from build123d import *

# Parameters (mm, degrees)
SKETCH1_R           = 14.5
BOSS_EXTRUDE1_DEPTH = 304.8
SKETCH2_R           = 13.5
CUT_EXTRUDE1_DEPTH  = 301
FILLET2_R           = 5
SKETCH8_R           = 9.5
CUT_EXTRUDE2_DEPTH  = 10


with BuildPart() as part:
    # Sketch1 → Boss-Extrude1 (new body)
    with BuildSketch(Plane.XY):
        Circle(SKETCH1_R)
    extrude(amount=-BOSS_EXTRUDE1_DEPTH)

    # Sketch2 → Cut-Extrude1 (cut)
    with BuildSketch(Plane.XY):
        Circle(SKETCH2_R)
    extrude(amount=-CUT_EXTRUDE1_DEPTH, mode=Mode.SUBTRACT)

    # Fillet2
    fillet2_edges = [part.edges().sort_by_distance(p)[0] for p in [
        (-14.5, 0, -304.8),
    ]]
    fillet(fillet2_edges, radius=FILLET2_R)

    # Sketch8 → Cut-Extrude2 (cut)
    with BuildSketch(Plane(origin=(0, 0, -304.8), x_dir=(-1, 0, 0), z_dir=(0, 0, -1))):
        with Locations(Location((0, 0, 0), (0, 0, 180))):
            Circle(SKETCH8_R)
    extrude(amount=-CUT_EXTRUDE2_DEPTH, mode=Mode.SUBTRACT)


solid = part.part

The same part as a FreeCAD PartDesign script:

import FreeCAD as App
import Part
import Sketcher
from FreeCAD import Vector


def edges_at(feature, points):
    """Names of the edges that pass closest to the given points."""
    edges = feature.Shape.Edges
    near = lambda p: min(range(len(edges)), key=lambda i: edges[i].distToShape(Part.Vertex(*p))[0])
    return sorted({f"Edge{near(p) + 1}" for p in points})

doc = App.newDocument("Part")
body = doc.addObject("PartDesign::Body", "Body")

# Sketch on XY plane
sketch1 = doc.addObject("Sketcher::SketchObject", "Sketch")
body.addObject(sketch1)
sketch1.AttachmentSupport = (doc.XY_Plane, [""])
sketch1.MapMode = "FlatFace"
sketch1.addGeometry(Part.Circle(Vector(0, 0, 0), Vector(0, 0, 1), 14.5), False)
sketch1.addConstraint([
    Sketcher.Constraint("Coincident", 0, 3, -1, 1),
    Sketcher.Constraint("Diameter", 0, 29.0),
])
pad1 = doc.addObject("PartDesign::Pad", "Pad")
body.addObject(pad1)
pad1.Profile = sketch1
pad1.Length = 304.8
pad1.Reversed = True

# Sketch on XY plane
sketch2 = doc.addObject("Sketcher::SketchObject", "Sketch001")
body.addObject(sketch2)
sketch2.AttachmentSupport = (doc.XY_Plane, [""])
sketch2.MapMode = "FlatFace"
sketch2.addGeometry(Part.Circle(Vector(0, 0, 0), Vector(0, 0, 1), 13.5), False)
sketch2.addConstraint([
    Sketcher.Constraint("Coincident", 0, 3, -1, 1),
    Sketcher.Constraint("Diameter", 0, 27.0),
])
pocket1 = doc.addObject("PartDesign::Pocket", "Pocket")
body.addObject(pocket1)
pocket1.Profile = sketch2
pocket1.Length = 301
doc.recompute()

fillet = doc.addObject("PartDesign::Fillet", "Fillet")
body.addObject(fillet)
fillet.Base = (pocket1, edges_at(pocket1, [(-14.5, 0, -304.8)]))
fillet.Radius = 5

# Sketch on XY plane
sketch3 = doc.addObject("Sketcher::SketchObject", "Sketch002")
body.addObject(sketch3)
sketch3.AttachmentSupport = (doc.XY_Plane, [""])
sketch3.MapMode = "FlatFace"
sketch3.AttachmentOffset = App.Placement(Vector(0, 0, -304.8), App.Rotation())
sketch3.addGeometry(Part.Circle(Vector(0, 0, 0), Vector(0, 0, 1), 9.5), False)
sketch3.addConstraint([
    Sketcher.Constraint("Coincident", 0, 3, -1, 1),
    Sketcher.Constraint("Diameter", 0, 19.0),
])
pocket2 = doc.addObject("PartDesign::Pocket", "Pocket001")
body.addObject(pocket2)
pocket2.Profile = sketch3
pocket2.Length = 10
pocket2.Reversed = True

doc.recompute()
